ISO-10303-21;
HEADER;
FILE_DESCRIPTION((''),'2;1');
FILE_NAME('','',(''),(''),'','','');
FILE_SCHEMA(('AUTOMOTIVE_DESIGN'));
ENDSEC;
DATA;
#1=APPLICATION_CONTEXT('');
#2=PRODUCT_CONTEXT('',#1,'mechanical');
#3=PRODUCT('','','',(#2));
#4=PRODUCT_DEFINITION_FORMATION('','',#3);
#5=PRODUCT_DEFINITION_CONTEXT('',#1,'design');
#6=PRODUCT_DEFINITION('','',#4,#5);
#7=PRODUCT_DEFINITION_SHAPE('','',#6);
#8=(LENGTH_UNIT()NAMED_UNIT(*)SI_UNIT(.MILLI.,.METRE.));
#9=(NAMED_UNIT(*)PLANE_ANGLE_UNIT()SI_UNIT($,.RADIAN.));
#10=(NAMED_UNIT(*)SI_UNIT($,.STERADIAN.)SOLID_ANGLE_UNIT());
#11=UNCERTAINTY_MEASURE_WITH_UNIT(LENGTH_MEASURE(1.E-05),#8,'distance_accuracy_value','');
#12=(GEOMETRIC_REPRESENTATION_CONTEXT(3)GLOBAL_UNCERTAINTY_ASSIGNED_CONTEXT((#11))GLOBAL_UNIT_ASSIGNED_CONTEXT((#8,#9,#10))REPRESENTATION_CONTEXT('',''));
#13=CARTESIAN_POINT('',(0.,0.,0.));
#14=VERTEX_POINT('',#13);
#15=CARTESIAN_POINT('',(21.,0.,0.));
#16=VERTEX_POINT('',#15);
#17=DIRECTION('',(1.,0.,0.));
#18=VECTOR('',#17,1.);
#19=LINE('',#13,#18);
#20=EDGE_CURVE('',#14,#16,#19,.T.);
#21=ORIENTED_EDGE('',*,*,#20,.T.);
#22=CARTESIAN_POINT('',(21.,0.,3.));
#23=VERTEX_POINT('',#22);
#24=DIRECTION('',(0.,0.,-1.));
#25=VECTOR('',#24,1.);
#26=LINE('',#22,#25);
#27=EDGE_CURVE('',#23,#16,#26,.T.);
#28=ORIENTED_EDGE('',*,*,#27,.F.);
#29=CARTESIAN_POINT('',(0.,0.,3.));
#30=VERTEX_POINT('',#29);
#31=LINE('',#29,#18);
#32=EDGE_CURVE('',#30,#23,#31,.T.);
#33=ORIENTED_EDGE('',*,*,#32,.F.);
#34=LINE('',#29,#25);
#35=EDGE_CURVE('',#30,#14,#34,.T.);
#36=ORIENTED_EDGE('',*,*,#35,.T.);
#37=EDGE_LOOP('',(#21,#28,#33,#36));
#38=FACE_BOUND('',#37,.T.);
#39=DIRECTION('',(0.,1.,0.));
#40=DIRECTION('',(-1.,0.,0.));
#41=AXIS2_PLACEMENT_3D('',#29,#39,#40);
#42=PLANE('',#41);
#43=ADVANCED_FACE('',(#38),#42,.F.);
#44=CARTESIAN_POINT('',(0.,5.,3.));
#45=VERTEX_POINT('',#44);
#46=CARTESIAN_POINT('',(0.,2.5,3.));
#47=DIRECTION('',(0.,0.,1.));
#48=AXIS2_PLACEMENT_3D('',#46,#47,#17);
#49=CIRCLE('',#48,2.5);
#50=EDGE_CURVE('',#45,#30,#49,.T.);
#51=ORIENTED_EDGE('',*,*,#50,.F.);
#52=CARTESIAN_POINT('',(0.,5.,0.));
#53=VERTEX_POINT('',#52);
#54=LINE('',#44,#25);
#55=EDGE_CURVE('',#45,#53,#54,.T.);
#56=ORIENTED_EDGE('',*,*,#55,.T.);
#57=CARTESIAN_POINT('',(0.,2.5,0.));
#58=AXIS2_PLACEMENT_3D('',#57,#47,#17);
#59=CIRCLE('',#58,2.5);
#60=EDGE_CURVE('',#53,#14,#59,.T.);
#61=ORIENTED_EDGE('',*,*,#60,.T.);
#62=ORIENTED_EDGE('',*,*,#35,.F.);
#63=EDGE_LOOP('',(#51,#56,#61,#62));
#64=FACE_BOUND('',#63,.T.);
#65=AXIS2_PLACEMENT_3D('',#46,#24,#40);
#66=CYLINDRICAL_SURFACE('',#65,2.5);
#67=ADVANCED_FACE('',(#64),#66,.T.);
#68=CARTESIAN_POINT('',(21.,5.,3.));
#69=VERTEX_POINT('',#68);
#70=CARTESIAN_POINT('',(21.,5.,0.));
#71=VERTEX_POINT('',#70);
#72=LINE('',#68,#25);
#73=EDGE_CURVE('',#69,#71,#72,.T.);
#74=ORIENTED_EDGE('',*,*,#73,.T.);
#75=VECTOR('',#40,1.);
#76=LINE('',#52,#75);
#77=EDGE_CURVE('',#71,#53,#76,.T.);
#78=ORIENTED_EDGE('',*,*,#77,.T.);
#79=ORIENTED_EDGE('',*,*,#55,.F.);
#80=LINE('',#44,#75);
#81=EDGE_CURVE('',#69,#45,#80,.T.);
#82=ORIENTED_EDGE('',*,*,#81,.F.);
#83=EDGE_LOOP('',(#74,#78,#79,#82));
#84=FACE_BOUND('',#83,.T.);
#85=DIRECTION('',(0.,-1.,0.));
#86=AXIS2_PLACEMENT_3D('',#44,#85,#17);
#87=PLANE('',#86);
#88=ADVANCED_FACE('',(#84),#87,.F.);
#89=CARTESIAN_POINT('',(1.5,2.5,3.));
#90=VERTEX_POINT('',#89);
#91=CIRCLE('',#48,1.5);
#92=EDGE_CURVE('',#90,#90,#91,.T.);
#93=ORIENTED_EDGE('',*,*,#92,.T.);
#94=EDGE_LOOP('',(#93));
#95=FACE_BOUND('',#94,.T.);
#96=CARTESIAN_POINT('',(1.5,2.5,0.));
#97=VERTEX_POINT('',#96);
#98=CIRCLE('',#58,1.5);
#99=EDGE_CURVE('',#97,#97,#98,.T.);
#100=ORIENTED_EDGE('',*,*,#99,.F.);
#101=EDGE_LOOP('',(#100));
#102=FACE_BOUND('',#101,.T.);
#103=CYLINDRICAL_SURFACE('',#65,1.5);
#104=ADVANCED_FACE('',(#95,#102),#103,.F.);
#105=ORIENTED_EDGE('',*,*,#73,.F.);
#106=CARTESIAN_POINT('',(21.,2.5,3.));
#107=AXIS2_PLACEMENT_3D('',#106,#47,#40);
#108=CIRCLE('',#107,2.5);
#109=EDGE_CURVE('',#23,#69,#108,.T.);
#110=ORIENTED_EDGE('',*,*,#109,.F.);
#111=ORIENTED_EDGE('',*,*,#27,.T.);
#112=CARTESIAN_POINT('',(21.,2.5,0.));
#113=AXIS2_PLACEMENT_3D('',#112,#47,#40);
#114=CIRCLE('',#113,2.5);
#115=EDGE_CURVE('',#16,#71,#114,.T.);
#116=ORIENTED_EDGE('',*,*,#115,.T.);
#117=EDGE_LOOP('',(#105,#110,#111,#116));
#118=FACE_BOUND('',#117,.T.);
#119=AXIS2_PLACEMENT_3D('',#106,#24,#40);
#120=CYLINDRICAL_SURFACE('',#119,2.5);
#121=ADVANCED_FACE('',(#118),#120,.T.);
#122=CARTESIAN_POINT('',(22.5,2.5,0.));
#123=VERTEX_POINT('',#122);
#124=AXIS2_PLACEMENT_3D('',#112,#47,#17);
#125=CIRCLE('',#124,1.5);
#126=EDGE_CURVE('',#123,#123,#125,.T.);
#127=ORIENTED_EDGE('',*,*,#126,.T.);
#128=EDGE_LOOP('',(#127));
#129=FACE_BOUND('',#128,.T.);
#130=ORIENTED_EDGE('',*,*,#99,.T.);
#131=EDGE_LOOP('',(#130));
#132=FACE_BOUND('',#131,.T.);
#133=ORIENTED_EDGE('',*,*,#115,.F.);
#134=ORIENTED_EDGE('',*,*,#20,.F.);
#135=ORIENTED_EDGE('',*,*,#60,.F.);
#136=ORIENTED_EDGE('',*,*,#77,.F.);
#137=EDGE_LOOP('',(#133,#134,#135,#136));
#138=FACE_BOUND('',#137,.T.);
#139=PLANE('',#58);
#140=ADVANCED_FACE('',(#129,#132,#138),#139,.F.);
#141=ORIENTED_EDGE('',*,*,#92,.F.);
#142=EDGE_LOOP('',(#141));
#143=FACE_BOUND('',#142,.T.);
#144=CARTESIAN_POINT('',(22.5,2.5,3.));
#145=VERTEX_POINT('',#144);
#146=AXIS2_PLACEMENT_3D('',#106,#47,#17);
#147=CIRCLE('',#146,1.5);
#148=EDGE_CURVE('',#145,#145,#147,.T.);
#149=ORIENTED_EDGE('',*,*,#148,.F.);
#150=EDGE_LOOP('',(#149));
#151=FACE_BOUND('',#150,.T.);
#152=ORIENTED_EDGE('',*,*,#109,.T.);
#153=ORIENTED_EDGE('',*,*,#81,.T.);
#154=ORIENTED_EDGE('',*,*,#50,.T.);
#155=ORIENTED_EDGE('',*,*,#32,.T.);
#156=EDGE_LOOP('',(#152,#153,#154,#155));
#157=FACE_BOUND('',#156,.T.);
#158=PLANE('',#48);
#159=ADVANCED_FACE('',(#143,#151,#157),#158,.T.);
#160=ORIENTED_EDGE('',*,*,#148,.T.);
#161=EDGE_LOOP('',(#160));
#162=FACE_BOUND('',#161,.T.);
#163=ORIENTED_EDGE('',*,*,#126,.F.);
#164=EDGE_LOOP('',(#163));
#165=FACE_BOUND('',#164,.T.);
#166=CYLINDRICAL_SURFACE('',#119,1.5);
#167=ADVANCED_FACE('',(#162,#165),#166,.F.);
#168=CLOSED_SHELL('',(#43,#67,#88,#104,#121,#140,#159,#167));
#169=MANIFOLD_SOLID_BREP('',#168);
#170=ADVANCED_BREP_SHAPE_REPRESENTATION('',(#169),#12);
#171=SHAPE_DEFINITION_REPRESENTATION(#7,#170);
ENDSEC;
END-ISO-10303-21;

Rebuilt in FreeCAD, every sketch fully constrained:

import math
import FreeCAD as App
import Part
import Sketcher
from FreeCAD import Vector
Q = App.Units.Quantity

doc = App.newDocument("Part")
params = doc.addObject("Spreadsheet::Sheet", "Params")
for row, (alias, value) in enumerate([
    ("sketch1_diameter", "3 mm"),
    ("sketch1_radius", "2.5 mm"),
    ("sketch1_width", "21 mm"),
    ("pad1_length", "3 mm"),
], start=1):
    params.set(f"A{row}", alias)
    params.set(f"B{row}", "=" + value)
    params.setAlias(f"B{row}", alias)

body = doc.addObject("PartDesign::Body", "Body")

# Sketch on XY plane
sketch1 = body.newObject("Sketcher::SketchObject", "Sketch")
sketch1.AttachmentSupport = (doc.getObject("XY_Plane"), [""])
sketch1.MapMode = "FlatFace"
sketch1.addGeometry([
    Part.LineSegment(Vector(0, 0, 0), Vector(21, 0, 0)),  # 0
    Part.ArcOfCircle(Part.Circle(Vector(21, 2.5, 0), Vector(0, 0, 1), 2.5), math.radians(-90), math.radians(90)),  # 1
    Part.LineSegment(Vector(21, 5, 0), Vector(0, 5, 0)),  # 2
    Part.ArcOfCircle(Part.Circle(Vector(0, 2.5, 0), Vector(0, 0, 1), 2.5), math.radians(90), math.radians(270)),  # 3
    Part.Circle(Vector(0, 2.5, 0), Vector(0, 0, 1), 1.5),  # 4
    Part.Circle(Vector(21, 2.5, 0), Vector(0, 0, 1), 1.5),  # 5
], False)
sketch1.addConstraint([
    Sketcher.Constraint("Tangent", 0, 2, 1, 1),
    Sketcher.Constraint("Tangent", 1, 2, 2, 1),
    Sketcher.Constraint("Tangent", 2, 2, 3, 1),
    Sketcher.Constraint("Tangent", 3, 2, 0, 1),
    Sketcher.Constraint("Horizontal", 0),
    Sketcher.Constraint("Horizontal", 2),
    Sketcher.Constraint("Coincident", 3, 2, -1, 1),
    Sketcher.Constraint("Coincident", 4, 3, 3, 3),
    Sketcher.Constraint("Coincident", 5, 3, 1, 3),
    Sketcher.Constraint("Equal", 4, 5),
    Sketcher.Constraint("Diameter", 4, Q("3 mm")),
    Sketcher.Constraint("Radius", 1, Q("2.5 mm")),
    Sketcher.Constraint("DistanceX", 0, 1, 0, 2, Q("21 mm")),
])
sketch1.setExpression("Constraints[10]", "Params.sketch1_diameter")
sketch1.setExpression("Constraints[11]", "Params.sketch1_radius")
sketch1.setExpression("Constraints[12]", "Params.sketch1_width")
pad1 = body.newObject("PartDesign::Pad", "Pad")
pad1.Profile = sketch1
pad1.setExpression("Length", "Params.pad1_length")

doc.recompute()
